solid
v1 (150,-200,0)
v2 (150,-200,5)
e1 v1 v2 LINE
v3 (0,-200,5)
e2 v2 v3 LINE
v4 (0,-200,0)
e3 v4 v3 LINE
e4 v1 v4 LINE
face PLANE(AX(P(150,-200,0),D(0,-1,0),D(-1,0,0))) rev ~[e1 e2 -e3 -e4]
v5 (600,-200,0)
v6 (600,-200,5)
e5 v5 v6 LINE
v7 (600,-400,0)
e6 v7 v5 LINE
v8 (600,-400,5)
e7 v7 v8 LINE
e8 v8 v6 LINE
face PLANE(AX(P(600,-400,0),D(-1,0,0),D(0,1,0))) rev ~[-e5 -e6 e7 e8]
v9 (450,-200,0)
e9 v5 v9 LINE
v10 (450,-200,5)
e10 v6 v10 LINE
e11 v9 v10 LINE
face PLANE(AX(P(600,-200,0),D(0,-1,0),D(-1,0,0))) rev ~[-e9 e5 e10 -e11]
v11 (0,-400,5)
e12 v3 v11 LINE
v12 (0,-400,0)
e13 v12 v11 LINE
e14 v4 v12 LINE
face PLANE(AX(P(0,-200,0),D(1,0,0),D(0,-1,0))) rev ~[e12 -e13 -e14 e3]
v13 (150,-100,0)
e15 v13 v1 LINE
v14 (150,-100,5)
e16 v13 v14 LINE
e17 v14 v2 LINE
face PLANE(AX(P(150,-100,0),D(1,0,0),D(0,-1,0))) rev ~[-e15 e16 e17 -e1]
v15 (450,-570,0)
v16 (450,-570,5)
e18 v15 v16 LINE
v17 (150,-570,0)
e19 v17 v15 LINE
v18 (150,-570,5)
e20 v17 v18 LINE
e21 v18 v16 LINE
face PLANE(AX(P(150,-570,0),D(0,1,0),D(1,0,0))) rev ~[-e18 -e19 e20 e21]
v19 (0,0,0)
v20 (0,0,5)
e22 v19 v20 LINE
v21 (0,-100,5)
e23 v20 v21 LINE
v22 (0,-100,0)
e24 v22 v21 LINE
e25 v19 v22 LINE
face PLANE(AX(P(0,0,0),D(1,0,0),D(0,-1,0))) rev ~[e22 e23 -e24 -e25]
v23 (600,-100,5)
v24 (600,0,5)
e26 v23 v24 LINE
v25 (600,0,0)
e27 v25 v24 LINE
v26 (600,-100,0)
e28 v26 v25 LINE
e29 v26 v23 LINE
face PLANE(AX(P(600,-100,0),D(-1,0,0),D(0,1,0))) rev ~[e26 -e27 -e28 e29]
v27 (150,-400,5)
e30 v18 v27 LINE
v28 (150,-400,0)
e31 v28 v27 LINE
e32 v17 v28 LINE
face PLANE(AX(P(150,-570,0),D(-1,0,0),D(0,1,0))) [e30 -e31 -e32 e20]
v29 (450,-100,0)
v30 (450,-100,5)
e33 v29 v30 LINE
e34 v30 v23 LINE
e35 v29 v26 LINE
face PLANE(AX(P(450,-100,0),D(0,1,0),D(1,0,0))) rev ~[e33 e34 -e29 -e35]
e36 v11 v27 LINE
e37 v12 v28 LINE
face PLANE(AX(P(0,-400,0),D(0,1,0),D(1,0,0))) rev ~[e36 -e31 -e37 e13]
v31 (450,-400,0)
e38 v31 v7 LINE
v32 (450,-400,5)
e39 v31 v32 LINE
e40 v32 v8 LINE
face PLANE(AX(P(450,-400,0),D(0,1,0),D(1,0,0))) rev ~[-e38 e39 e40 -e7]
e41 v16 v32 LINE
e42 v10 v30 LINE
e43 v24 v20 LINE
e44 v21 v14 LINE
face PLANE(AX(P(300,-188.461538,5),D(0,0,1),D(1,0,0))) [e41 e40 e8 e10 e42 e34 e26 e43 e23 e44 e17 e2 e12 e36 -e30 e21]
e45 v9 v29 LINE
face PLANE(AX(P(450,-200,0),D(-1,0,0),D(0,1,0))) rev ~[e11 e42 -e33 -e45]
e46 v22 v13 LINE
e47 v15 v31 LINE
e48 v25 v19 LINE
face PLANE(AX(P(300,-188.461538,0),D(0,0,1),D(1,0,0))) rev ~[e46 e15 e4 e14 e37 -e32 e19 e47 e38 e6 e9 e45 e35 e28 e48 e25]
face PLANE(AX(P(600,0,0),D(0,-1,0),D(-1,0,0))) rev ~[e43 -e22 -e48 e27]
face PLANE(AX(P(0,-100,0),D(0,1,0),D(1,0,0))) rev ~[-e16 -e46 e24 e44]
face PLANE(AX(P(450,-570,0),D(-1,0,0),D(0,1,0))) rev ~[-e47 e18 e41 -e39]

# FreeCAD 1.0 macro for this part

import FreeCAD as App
import Part
import Sketcher

V = App.Vector
Q = App.Units.Quantity

doc = App.newDocument("Part")
params = doc.addObject("Spreadsheet::Sheet", "Params")
for row, (alias, value) in enumerate([
    ("sketch1_width", "600 mm"),
    ("sketch1_width2", "150 mm"),
    ("sketch1_height", "100 mm"),
    ("sketch1_height2", "200 mm"),
    ("sketch1_height3", "170 mm"),
    ("pad1_length", "5 mm"),
], start=1):
    params.set(f"A{row}", alias)
    params.set(f"B{row}", "=" + value)
    params.setAlias(f"B{row}", alias)

body = doc.addObject("PartDesign::Body", "Body")

# Sketch on XY plane
sketch1 = body.newObject("Sketcher::SketchObject", "Sketch")
sketch1.AttachmentSupport = (doc.getObject("XY_Plane"), [""])
sketch1.MapMode = "FlatFace"
sketch1.addGeometry([
    Part.LineSegment(V(600, 0, 0), V(0, 0, 0)),  # 0
    Part.LineSegment(V(0, 0, 0), V(0, -100, 0)),  # 1
    Part.LineSegment(V(0, -100, 0), V(150, -100, 0)),  # 2
    Part.LineSegment(V(150, -100, 0), V(150, -200, 0)),  # 3
    Part.LineSegment(V(150, -200, 0), V(0, -200, 0)),  # 4
    Part.LineSegment(V(0, -200, 0), V(0, -400, 0)),  # 5
    Part.LineSegment(V(0, -400, 0), V(150, -400, 0)),  # 6
    Part.LineSegment(V(150, -400, 0), V(150, -570, 0)),  # 7
    Part.LineSegment(V(150, -570, 0), V(450, -570, 0)),  # 8
    Part.LineSegment(V(450, -570, 0), V(450, -400, 0)),  # 9
    Part.LineSegment(V(450, -400, 0), V(600, -400, 0)),  # 10
    Part.LineSegment(V(600, -400, 0), V(600, -200, 0)),  # 11
    Part.LineSegment(V(600, -200, 0), V(450, -200, 0)),  # 12
    Part.LineSegment(V(450, -200, 0), V(450, -100, 0)),  # 13
    Part.LineSegment(V(450, -100, 0), V(600, -100, 0)),  # 14
    Part.LineSegment(V(600, -100, 0), V(600, 0, 0)),  # 15
], False)
sketch1.addConstraint([
    Sketcher.Constraint("Coincident", 0, 2, 1, 1),
    Sketcher.Constraint("Coincident", 1, 2, 2, 1),
    Sketcher.Constraint("Coincident", 2, 2, 3, 1),
    Sketcher.Constraint("Coincident", 3, 2, 4, 1),
    Sketcher.Constraint("Coincident", 4, 2, 5, 1),
    Sketcher.Constraint("Coincident", 5, 2, 6, 1),
    Sketcher.Constraint("Coincident", 6, 2, 7, 1),
    Sketcher.Constraint("Coincident", 7, 2, 8, 1),
    Sketcher.Constraint("Coincident", 8, 2, 9, 1),
    Sketcher.Constraint("Coincident", 9, 2, 10, 1),
    Sketcher.Constraint("Coincident", 10, 2, 11, 1),
    Sketcher.Constraint("Coincident", 11, 2, 12, 1),
    Sketcher.Constraint("Coincident", 12, 2, 13, 1),
    Sketcher.Constraint("Coincident", 13, 2, 14, 1),
    Sketcher.Constraint("Coincident", 14, 2, 15, 1),
    Sketcher.Constraint("Coincident", 15, 2, 0, 1),
    Sketcher.Constraint("Horizontal", 0),
    Sketcher.Constraint("Vertical", 1),
    Sketcher.Constraint("Horizontal", 2),
    Sketcher.Constraint("Vertical", 3),
    Sketcher.Constraint("Horizontal", 4),
    Sketcher.Constraint("Vertical", 5),
    Sketcher.Constraint("Horizontal", 6),
    Sketcher.Constraint("Vertical", 7),
    Sketcher.Constraint("Horizontal", 8),
    Sketcher.Constraint("Vertical", 9),
    Sketcher.Constraint("Horizontal", 10),
    Sketcher.Constraint("Vertical", 11),
    Sketcher.Constraint("Horizontal", 12),
    Sketcher.Constraint("Vertical", 13),
    Sketcher.Constraint("Horizontal", 14),
    Sketcher.Constraint("Vertical", 15),
    Sketcher.Constraint("Coincident", 0, 2, -1, 1),
    Sketcher.Constraint("PointOnObject", 4, 2, -2),
    Sketcher.Constraint("Horizontal", 6, 2, 9, 2),
    Sketcher.Constraint("Horizontal", 4, 2, 11, 2),
    Sketcher.Constraint("Horizontal", 2, 2, 13, 2),
    Sketcher.Constraint("Vertical", 3, 2, 6, 2),
    Sketcher.Constraint("Vertical", 9, 2, 12, 2),
    Sketcher.Constraint("Vertical", 11, 2, 14, 2),
    Sketcher.Constraint("Equal", 6, 10),
    Sketcher.Constraint("Equal", 1, 3),
    Sketcher.Constraint("DistanceX", 0, 2, 0, 1, Q("600 mm")),
    Sketcher.Constraint("DistanceX", 2, 1, 2, 2, Q("150 mm")),
    Sketcher.Constraint("DistanceY", 1, 2, 1, 1, Q("100 mm")),
    Sketcher.Constraint("DistanceY", 5, 2, 5, 1, Q("200 mm")),
    Sketcher.Constraint("DistanceY", 7, 2, 7, 1, Q("170 mm")),
])
sketch1.setExpression("Constraints[42]", "Params.sketch1_width")
sketch1.setExpression("Constraints[43]", "Params.sketch1_width2")
sketch1.setExpression("Constraints[44]", "Params.sketch1_height")
sketch1.setExpression("Constraints[45]", "Params.sketch1_height2")
sketch1.setExpression("Constraints[46]", "Params.sketch1_height3")
pad1 = body.newObject("PartDesign::Pad", "Pad")
pad1.Profile = sketch1
pad1.setExpression("Length", "Params.pad1_length")

doc.recompute()
